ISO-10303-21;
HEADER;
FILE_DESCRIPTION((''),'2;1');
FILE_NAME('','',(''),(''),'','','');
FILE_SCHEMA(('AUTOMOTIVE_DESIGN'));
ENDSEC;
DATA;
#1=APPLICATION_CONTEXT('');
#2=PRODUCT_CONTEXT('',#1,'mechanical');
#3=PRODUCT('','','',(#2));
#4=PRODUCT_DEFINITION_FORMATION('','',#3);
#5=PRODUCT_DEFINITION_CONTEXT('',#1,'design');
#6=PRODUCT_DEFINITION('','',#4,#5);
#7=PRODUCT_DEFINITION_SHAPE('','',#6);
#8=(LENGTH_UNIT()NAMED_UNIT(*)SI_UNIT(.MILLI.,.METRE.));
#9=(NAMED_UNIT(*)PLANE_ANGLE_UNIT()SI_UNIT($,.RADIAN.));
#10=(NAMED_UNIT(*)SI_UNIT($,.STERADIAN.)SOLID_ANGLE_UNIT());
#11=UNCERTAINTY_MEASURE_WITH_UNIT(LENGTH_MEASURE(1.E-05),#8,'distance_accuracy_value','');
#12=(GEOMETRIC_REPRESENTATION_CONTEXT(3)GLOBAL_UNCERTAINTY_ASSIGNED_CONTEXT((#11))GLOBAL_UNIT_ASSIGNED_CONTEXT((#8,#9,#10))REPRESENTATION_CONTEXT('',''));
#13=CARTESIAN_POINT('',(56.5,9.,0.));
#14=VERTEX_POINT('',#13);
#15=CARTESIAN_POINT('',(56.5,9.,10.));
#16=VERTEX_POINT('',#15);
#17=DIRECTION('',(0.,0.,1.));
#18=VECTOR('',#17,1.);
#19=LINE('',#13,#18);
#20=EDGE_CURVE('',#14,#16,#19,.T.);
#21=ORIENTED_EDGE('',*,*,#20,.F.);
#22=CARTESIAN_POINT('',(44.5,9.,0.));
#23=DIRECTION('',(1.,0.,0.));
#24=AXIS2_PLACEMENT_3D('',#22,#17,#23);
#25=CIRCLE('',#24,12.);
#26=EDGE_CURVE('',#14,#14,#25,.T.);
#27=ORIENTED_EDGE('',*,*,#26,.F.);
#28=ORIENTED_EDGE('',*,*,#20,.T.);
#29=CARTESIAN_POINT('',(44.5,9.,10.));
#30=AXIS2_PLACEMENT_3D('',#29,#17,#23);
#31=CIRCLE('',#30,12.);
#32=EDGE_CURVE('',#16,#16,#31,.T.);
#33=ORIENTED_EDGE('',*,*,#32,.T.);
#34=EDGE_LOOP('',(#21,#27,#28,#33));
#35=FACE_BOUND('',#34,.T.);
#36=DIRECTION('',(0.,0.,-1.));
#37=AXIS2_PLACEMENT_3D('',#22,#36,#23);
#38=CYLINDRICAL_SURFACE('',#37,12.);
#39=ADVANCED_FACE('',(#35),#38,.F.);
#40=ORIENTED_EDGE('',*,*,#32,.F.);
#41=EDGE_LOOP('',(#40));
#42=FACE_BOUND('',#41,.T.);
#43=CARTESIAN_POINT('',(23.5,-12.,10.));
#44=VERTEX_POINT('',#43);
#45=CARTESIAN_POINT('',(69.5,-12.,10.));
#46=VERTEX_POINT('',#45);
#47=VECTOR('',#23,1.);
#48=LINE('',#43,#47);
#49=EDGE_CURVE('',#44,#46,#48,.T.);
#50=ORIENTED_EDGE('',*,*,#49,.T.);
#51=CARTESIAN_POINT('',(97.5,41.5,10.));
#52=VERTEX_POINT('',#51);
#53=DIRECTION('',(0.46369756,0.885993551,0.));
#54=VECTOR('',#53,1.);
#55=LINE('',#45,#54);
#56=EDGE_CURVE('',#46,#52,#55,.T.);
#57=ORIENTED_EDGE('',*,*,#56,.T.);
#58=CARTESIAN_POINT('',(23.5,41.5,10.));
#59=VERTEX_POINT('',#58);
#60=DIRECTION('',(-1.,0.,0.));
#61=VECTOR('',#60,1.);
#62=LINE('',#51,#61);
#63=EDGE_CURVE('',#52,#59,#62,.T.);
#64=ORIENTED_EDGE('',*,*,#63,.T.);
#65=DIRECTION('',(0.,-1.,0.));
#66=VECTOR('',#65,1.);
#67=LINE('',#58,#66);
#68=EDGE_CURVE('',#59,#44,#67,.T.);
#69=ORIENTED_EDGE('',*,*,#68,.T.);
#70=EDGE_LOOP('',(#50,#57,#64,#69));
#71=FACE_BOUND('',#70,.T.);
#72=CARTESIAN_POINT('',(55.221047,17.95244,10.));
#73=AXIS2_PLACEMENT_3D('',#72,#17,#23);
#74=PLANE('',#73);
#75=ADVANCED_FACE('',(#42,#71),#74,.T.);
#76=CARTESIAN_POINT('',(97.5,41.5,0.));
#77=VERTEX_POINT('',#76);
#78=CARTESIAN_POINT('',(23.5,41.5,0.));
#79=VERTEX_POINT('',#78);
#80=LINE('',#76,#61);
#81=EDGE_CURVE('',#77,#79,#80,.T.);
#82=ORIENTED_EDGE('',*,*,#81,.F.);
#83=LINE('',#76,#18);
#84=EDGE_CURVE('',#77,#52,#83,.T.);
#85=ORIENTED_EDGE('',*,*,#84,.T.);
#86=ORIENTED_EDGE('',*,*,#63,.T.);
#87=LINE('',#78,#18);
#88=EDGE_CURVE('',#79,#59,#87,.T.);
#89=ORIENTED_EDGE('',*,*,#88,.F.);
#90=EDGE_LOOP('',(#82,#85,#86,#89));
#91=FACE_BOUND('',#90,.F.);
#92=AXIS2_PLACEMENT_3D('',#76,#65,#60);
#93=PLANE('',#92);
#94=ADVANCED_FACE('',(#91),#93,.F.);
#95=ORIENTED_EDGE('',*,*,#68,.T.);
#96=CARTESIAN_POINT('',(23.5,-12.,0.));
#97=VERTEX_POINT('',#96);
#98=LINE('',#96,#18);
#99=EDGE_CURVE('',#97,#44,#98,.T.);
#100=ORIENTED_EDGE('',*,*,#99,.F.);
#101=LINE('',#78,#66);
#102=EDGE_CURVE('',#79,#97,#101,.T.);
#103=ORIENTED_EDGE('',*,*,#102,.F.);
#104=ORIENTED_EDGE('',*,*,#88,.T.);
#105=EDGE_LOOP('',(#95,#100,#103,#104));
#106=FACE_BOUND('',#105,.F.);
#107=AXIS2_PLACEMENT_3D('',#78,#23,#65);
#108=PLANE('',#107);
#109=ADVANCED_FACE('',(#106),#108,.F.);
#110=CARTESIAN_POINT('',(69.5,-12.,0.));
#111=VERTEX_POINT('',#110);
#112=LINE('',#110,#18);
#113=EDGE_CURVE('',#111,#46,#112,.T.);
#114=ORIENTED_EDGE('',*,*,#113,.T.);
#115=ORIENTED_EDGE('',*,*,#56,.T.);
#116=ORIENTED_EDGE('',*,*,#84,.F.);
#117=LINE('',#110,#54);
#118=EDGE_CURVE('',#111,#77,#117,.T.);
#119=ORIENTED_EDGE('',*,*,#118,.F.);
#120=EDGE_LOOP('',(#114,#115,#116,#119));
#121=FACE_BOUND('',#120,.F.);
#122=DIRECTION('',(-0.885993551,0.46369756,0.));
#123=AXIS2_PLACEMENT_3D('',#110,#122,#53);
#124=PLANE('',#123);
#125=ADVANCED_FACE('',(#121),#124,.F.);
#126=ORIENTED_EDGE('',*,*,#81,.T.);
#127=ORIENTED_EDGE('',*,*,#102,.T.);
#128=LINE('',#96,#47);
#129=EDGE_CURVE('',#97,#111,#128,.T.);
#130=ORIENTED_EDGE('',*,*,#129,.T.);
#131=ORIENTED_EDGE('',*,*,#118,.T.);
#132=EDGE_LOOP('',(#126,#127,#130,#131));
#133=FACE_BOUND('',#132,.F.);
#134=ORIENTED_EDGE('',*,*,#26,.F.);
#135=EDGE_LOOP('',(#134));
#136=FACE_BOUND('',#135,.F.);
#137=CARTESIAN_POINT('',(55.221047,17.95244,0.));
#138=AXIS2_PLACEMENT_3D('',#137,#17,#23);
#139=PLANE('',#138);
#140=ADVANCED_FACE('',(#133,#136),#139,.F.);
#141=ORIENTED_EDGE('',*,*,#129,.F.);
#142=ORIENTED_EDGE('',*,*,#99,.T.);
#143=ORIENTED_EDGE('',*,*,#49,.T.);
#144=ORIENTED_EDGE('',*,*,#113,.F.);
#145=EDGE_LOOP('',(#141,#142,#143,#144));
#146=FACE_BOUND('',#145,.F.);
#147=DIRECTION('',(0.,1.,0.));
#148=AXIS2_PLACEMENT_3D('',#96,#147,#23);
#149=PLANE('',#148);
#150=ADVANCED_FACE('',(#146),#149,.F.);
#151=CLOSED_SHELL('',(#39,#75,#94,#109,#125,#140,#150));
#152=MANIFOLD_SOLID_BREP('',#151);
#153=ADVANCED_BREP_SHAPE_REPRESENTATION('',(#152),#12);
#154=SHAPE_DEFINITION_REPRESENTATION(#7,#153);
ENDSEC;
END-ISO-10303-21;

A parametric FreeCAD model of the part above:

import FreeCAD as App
import Part
import Sketcher
from FreeCAD import Vector


def add_polygon(sketch, points):
    """Adds a closed chain of lines whose ends are joined by coincident constraints."""
    first, n = sketch.GeometryCount, len(points)
    for a, b in zip(points, points[1:] + points[:1]):
        sketch.addGeometry(Part.LineSegment(App.Vector(*a, 0), App.Vector(*b, 0)), False)
    for i in range(n):
        sketch.addConstraint(Sketcher.Constraint("Coincident", first + i, 2, first + (i + 1) % n, 1))

doc = App.newDocument("Part")
body = doc.addObject("PartDesign::Body", "Body")

# Sketch on XY plane
sketch1 = doc.addObject("Sketcher::SketchObject", "Sketch")
body.addObject(sketch1)
sketch1.AttachmentSupport = (doc.XY_Plane, [""])
sketch1.MapMode = "FlatFace"
sketch1.addGeometry(Part.Circle(Vector(44, 9, 0), Vector(0, 0, 1), 12), False)
sketch1.addConstraint([
    Sketcher.Constraint("Diameter", 0, 24.0),
    Sketcher.Constraint("DistanceY", -1, 1, 0, 3, 9.0),
    Sketcher.Constraint("DistanceX", -1, 1, 0, 3, 44.5),
])
pad1 = doc.addObject("PartDesign::Pad", "Pad")
body.addObject(pad1)
pad1.Profile = sketch1
pad1.Length = 10
body2 = doc.addObject("PartDesign::Body", "Body001")

# Sketch on XY plane
sketch2 = doc.addObject("Sketcher::SketchObject", "Sketch001")
body2.addObject(sketch2)
sketch2.AttachmentSupport = (doc.getObject("XY_Plane001"), [""])
sketch2.MapMode = "FlatFace"
add_polygon(sketch2, [(98, 42), (24, 42), (24, -12), (70, -12)])  # lines 0-3
sketch2.addConstraint([
    Sketcher.Constraint("Horizontal", 0),
    Sketcher.Constraint("Vertical", 1),
    Sketcher.Constraint("Horizontal", 2),
    Sketcher.Constraint("DistanceX", 0, 2, 0, 1, 74.0),
    Sketcher.Constraint("DistanceX", 2, 1, 2, 2, 46.0),
    Sketcher.Constraint("DistanceY", 1, 2, 1, 1, 53.5),
    Sketcher.Constraint("DistanceY", 1, 2, -1, 1, 12.0),
    Sketcher.Constraint("DistanceX", -1, 1, 0, 2, 23.5),
])
pad2 = doc.addObject("PartDesign::Pad", "Pad001")
body2.addObject(pad2)
pad2.Profile = sketch2
pad2.Length = 10
doc.recompute()

boolean = doc.addObject("PartDesign::Boolean", "Boolean")
body2.addObject(boolean)
boolean.Type = "Cut"
boolean.addObjects([body])

doc.recompute()
